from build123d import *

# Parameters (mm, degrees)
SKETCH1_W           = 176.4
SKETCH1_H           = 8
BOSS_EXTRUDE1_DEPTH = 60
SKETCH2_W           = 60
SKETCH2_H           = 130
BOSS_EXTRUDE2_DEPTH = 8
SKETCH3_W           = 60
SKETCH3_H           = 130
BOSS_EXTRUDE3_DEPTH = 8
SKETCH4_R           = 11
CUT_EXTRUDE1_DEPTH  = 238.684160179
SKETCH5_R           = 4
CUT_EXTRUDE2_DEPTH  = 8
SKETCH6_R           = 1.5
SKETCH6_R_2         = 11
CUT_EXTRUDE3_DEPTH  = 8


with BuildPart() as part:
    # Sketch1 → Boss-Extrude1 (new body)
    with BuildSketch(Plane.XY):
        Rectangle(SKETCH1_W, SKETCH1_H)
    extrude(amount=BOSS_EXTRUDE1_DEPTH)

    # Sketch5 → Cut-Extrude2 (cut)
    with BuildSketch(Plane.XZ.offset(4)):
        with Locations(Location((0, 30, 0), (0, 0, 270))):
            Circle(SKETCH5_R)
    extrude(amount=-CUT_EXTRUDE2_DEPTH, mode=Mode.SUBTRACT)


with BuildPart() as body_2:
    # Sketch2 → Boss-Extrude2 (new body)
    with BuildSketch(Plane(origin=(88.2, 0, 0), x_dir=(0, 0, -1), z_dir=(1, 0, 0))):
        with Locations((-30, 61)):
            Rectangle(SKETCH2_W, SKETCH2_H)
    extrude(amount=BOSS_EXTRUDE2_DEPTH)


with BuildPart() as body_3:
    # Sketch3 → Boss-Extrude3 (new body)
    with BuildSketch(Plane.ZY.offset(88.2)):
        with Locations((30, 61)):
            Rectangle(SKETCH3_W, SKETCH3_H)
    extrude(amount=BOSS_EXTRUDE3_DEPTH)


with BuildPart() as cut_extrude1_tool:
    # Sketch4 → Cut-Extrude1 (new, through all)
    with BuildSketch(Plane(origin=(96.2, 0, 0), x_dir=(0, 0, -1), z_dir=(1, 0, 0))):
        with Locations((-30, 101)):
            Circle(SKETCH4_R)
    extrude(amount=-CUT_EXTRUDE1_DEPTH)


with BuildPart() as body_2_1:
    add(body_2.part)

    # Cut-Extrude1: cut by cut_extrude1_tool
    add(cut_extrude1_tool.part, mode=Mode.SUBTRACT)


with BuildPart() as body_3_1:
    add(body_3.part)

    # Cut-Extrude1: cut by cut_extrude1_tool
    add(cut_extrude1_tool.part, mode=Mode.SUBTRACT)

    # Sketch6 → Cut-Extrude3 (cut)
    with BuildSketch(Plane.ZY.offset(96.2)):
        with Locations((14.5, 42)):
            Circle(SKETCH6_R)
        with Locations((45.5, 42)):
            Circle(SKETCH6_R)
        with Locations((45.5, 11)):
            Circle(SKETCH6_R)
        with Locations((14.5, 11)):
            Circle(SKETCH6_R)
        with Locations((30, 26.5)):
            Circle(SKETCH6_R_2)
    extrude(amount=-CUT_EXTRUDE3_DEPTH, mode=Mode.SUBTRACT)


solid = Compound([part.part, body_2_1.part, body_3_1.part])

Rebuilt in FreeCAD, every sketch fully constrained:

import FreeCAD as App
import Part
import Sketcher
Q = App.Units.Quantity


def add_polygon(sketch, points):
    """Adds a closed chain of lines whose ends are joined by coincident constraints."""
    first, n = sketch.GeometryCount, len(points)
    for a, b in zip(points, points[1:] + points[:1]):
        sketch.addGeometry(Part.LineSegment(App.Vector(*a, 0), App.Vector(*b, 0)), False)
    for i in range(n):
        sketch.addConstraint(Sketcher.Constraint("Coincident", first + i, 2, first + (i + 1) % n, 1))

doc = App.newDocument("Part")
params = doc.addObject("Spreadsheet::Sheet", "Params")
for row, (alias, value) in enumerate([
    ("sketch1_height", "8 mm"),
    ("sketch1_width", "176.4 mm"),
    ("pad1_length", "60 mm"),
    ("sketch2_diameter", "8 mm"),
    ("pocket1_length", "8 mm"),
    ("sketch3_width", "130 mm"),
    ("sketch3_height", "60 mm"),
    ("pad2_length", "8 mm"),
    ("sketch4_width", "130 mm"),
    ("sketch4_height", "60 mm"),
    ("pad3_length", "8 mm"),
    ("sketch5_diameter", "22 mm"),
    ("pad4_length", "238.68416 mm"),
    ("sketch6_diameter", "3 mm"),
    ("sketch6_diameter2", "22 mm"),
    ("pocket2_length", "8 mm"),
], start=1):
    params.set(f"A{row}", alias)
    params.set(f"B{row}", "=" + value)
    params.setAlias(f"B{row}", alias)

body = doc.addObject("PartDesign::Body", "Body")

# Sketch on XY plane
sketch1 = doc.addObject("Sketcher::SketchObject", "Sketch")
body.addObject(sketch1)
sketch1.AttachmentSupport = (doc.XY_Plane, [""])
sketch1.MapMode = "FlatFace"
add_polygon(sketch1, [(-88, 4), (-88, -4), (88, -4), (88, 4)])  # lines 0-3
sketch1.addConstraint([
    Sketcher.Constraint("Vertical", 0),
    Sketcher.Constraint("Horizontal", 1),
    Sketcher.Constraint("Vertical", 2),
    Sketcher.Constraint("Horizontal", 3),
    Sketcher.Constraint("Symmetric", 0, 2, 2, 2, -1, 1),
    Sketcher.Constraint("DistanceY", 0, 2, 0, 1, Q("8 mm")),
    Sketcher.Constraint("DistanceX", 1, 1, 1, 2, Q("176.4 mm")),
])
sketch1.setExpression("Constraints[9]", "Params.sketch1_height")
sketch1.setExpression("Constraints[10]", "Params.sketch1_width")
pad1 = doc.addObject("PartDesign::Pad", "Pad")
body.addObject(pad1)
pad1.Profile = sketch1
pad1.setExpression("Length", "Params.pad1_length")

# Sketch on XZ plane
sketch2 = doc.addObject("Sketcher::SketchObject", "Sketch001")
body.addObject(sketch2)
sketch2.AttachmentSupport = (doc.XZ_Plane, [""])
sketch2.MapMode = "FlatFace"
sketch2.AttachmentOffset = App.Placement(App.Vector(0, 0, 4), App.Rotation())
sketch2.addGeometry(Part.Circle(App.Vector(0, 30, 0), App.Vector(0, 0, 1), 4), False)
sketch2.addConstraint([
    Sketcher.Constraint("PointOnObject", 0, 3, -2),
    Sketcher.Constraint("Diameter", 0, Q("8 mm")),
    Sketcher.Constraint("DistanceY", -1, 1, 0, 3, Q("30 mm")),
])
sketch2.setExpression("Constraints[1]", "Params.sketch2_diameter")
pocket1 = doc.addObject("PartDesign::Pocket", "Pocket")
body.addObject(pocket1)
pocket1.Profile = sketch2
pocket1.setExpression("Length", "Params.pocket1_length")
body2 = doc.addObject("PartDesign::Body", "Body001")

# Sketch on YZ plane
sketch3 = doc.addObject("Sketcher::SketchObject", "Sketch002")
body2.addObject(sketch3)
sketch3.AttachmentSupport = (doc.getObject("YZ_Plane001"), [""])
sketch3.MapMode = "FlatFace"
sketch3.AttachmentOffset = App.Placement(App.Vector(0, 0, 88.2), App.Rotation())
add_polygon(sketch3, [(126, 60), (-4, 60), (-4, 0), (126, 0)])  # lines 0-3
sketch3.addConstraint([
    Sketcher.Constraint("Horizontal", 0),
    Sketcher.Constraint("Vertical", 1),
    Sketcher.Constraint("Horizontal", 2),
    Sketcher.Constraint("Vertical", 3),
    Sketcher.Constraint("PointOnObject", 1, 2, -1),
    Sketcher.Constraint("DistanceX", 0, 2, 0, 1, Q("130 mm")),
    Sketcher.Constraint("DistanceY", 1, 2, 1, 1, Q("60 mm")),
    Sketcher.Constraint("DistanceX", 0, 2, -1, 1, Q("4 mm")),
])
sketch3.setExpression("Constraints[9]", "Params.sketch3_width")
sketch3.setExpression("Constraints[10]", "Params.sketch3_height")
pad2 = doc.addObject("PartDesign::Pad", "Pad001")
body2.addObject(pad2)
pad2.Profile = sketch3
pad2.setExpression("Length", "Params.pad2_length")
body3 = doc.addObject("PartDesign::Body", "Body002")

# Sketch on YZ plane
sketch4 = doc.addObject("Sketcher::SketchObject", "Sketch003")
body3.addObject(sketch4)
sketch4.AttachmentSupport = (doc.getObject("YZ_Plane002"), [""])
sketch4.MapMode = "FlatFace"
sketch4.AttachmentOffset = App.Placement(App.Vector(0, 0, -88.2), App.Rotation())
add_polygon(sketch4, [(126, 0), (-4, 0), (-4, 60), (126, 60)])  # lines 0-3
sketch4.addConstraint([
    Sketcher.Constraint("Horizontal", 0),
    Sketcher.Constraint("Vertical", 1),
    Sketcher.Constraint("Horizontal", 2),
    Sketcher.Constraint("Vertical", 3),
    Sketcher.Constraint("PointOnObject", 0, 2, -1),
    Sketcher.Constraint("DistanceX", 0, 2, 0, 1, Q("130 mm")),
    Sketcher.Constraint("DistanceY", 1, 1, 1, 2, Q("60 mm")),
    Sketcher.Constraint("DistanceX", 0, 2, -1, 1, Q("4 mm")),
])
sketch4.setExpression("Constraints[9]", "Params.sketch4_width")
sketch4.setExpression("Constraints[10]", "Params.sketch4_height")
pad3 = doc.addObject("PartDesign::Pad", "Pad002")
body3.addObject(pad3)
pad3.Profile = sketch4
pad3.setExpression("Length", "Params.pad3_length")
pad3.Reversed = True
body4 = doc.addObject("PartDesign::Body", "Body003")

# Sketch on YZ plane
sketch5 = doc.addObject("Sketcher::SketchObject", "Sketch004")
body4.addObject(sketch5)
sketch5.AttachmentSupport = (doc.getObject("YZ_Plane003"), [""])
sketch5.MapMode = "FlatFace"
sketch5.AttachmentOffset = App.Placement(App.Vector(0, 0, 96.2), App.Rotation())
sketch5.addGeometry(Part.Circle(App.Vector(101, 30, 0), App.Vector(0, 0, 1), 11), False)
sketch5.addConstraint([
    Sketcher.Constraint("Diameter", 0, Q("22 mm")),
    Sketcher.Constraint("DistanceX", -1, 1, 0, 3, Q("101 mm")),
    Sketcher.Constraint("DistanceY", -1, 1, 0, 3, Q("30 mm")),
])
sketch5.setExpression("Constraints[0]", "Params.sketch5_diameter")
pad4 = doc.addObject("PartDesign::Pad", "Pad003")
body4.addObject(pad4)
pad4.Profile = sketch5
pad4.setExpression("Length", "Params.pad4_length")
pad4.Reversed = True
doc.recompute()

body5 = doc.addObject("PartDesign::Body", "Body004")
body5.BaseFeature = body4
boolean = doc.addObject("PartDesign::Boolean", "Boolean")
body2.addObject(boolean)
boolean.Type = "Cut"
boolean.addObjects([body5])
doc.recompute()

boolean2 = doc.addObject("PartDesign::Boolean", "Boolean001")
body3.addObject(boolean2)
boolean2.Type = "Cut"
boolean2.addObjects([body4])

# Sketch on YZ plane
sketch6 = doc.addObject("Sketcher::SketchObject", "Sketch005")
body3.addObject(sketch6)
sketch6.AttachmentSupport = (doc.getObject("YZ_Plane002"), [""])
sketch6.MapMode = "FlatFace"
sketch6.AttachmentOffset = App.Placement(App.Vector(0, 0, -96.2), App.Rotation())
sketch6.addGeometry([
    Part.Circle(App.Vector(42, 14.5, 0), App.Vector(0, 0, 1), 1.5),  # 0
    Part.Circle(App.Vector(42, 45.5, 0), App.Vector(0, 0, 1), 1.5),  # 1
    Part.Circle(App.Vector(11, 45.5, 0), App.Vector(0, 0, 1), 1.5),  # 2
    Part.Circle(App.Vector(11, 14.5, 0), App.Vector(0, 0, 1), 1.5),  # 3
    Part.Circle(App.Vector(26.5, 30, 0), App.Vector(0, 0, 1), 11),  # 4
], False)
sketch6.addConstraint([
    Sketcher.Constraint("Equal", 0, 1),
    Sketcher.Constraint("Equal", 1, 2),
    Sketcher.Constraint("Equal", 2, 3),
    Sketcher.Constraint("Horizontal", 1, 3, 2, 3),
    Sketcher.Constraint("Horizontal", 0, 3, 3, 3),
    Sketcher.Constraint("Vertical", 0, 3, 1, 3),
    Sketcher.Constraint("Vertical", 2, 3, 3, 3),
    Sketcher.Constraint("Diameter", 0, Q("3 mm")),
    Sketcher.Constraint("Diameter", 4, Q("22 mm")),
    Sketcher.Constraint("DistanceX", -1, 1, 0, 3, Q("42 mm")),
    Sketcher.Constraint("DistanceX", -1, 1, 2, 3, Q("11 mm")),
    Sketcher.Constraint("DistanceY", -1, 1, 4, 3, Q("30 mm")),
    Sketcher.Constraint("DistanceY", 0, 3, 1, 3, Q("31 mm")),
    Sketcher.Constraint("DistanceY", -1, 1, 0, 3, Q("14.5 mm")),
    Sketcher.Constraint("DistanceX", -1, 1, 4, 3, Q("26.5 mm")),
])
sketch6.setExpression("Constraints[7]", "Params.sketch6_diameter")
sketch6.setExpression("Constraints[8]", "Params.sketch6_diameter2")
pocket2 = doc.addObject("PartDesign::Pocket", "Pocket001")
body3.addObject(pocket2)
pocket2.Profile = sketch6
pocket2.setExpression("Length", "Params.pocket2_length")
pocket2.Reversed = True

doc.recompute()
